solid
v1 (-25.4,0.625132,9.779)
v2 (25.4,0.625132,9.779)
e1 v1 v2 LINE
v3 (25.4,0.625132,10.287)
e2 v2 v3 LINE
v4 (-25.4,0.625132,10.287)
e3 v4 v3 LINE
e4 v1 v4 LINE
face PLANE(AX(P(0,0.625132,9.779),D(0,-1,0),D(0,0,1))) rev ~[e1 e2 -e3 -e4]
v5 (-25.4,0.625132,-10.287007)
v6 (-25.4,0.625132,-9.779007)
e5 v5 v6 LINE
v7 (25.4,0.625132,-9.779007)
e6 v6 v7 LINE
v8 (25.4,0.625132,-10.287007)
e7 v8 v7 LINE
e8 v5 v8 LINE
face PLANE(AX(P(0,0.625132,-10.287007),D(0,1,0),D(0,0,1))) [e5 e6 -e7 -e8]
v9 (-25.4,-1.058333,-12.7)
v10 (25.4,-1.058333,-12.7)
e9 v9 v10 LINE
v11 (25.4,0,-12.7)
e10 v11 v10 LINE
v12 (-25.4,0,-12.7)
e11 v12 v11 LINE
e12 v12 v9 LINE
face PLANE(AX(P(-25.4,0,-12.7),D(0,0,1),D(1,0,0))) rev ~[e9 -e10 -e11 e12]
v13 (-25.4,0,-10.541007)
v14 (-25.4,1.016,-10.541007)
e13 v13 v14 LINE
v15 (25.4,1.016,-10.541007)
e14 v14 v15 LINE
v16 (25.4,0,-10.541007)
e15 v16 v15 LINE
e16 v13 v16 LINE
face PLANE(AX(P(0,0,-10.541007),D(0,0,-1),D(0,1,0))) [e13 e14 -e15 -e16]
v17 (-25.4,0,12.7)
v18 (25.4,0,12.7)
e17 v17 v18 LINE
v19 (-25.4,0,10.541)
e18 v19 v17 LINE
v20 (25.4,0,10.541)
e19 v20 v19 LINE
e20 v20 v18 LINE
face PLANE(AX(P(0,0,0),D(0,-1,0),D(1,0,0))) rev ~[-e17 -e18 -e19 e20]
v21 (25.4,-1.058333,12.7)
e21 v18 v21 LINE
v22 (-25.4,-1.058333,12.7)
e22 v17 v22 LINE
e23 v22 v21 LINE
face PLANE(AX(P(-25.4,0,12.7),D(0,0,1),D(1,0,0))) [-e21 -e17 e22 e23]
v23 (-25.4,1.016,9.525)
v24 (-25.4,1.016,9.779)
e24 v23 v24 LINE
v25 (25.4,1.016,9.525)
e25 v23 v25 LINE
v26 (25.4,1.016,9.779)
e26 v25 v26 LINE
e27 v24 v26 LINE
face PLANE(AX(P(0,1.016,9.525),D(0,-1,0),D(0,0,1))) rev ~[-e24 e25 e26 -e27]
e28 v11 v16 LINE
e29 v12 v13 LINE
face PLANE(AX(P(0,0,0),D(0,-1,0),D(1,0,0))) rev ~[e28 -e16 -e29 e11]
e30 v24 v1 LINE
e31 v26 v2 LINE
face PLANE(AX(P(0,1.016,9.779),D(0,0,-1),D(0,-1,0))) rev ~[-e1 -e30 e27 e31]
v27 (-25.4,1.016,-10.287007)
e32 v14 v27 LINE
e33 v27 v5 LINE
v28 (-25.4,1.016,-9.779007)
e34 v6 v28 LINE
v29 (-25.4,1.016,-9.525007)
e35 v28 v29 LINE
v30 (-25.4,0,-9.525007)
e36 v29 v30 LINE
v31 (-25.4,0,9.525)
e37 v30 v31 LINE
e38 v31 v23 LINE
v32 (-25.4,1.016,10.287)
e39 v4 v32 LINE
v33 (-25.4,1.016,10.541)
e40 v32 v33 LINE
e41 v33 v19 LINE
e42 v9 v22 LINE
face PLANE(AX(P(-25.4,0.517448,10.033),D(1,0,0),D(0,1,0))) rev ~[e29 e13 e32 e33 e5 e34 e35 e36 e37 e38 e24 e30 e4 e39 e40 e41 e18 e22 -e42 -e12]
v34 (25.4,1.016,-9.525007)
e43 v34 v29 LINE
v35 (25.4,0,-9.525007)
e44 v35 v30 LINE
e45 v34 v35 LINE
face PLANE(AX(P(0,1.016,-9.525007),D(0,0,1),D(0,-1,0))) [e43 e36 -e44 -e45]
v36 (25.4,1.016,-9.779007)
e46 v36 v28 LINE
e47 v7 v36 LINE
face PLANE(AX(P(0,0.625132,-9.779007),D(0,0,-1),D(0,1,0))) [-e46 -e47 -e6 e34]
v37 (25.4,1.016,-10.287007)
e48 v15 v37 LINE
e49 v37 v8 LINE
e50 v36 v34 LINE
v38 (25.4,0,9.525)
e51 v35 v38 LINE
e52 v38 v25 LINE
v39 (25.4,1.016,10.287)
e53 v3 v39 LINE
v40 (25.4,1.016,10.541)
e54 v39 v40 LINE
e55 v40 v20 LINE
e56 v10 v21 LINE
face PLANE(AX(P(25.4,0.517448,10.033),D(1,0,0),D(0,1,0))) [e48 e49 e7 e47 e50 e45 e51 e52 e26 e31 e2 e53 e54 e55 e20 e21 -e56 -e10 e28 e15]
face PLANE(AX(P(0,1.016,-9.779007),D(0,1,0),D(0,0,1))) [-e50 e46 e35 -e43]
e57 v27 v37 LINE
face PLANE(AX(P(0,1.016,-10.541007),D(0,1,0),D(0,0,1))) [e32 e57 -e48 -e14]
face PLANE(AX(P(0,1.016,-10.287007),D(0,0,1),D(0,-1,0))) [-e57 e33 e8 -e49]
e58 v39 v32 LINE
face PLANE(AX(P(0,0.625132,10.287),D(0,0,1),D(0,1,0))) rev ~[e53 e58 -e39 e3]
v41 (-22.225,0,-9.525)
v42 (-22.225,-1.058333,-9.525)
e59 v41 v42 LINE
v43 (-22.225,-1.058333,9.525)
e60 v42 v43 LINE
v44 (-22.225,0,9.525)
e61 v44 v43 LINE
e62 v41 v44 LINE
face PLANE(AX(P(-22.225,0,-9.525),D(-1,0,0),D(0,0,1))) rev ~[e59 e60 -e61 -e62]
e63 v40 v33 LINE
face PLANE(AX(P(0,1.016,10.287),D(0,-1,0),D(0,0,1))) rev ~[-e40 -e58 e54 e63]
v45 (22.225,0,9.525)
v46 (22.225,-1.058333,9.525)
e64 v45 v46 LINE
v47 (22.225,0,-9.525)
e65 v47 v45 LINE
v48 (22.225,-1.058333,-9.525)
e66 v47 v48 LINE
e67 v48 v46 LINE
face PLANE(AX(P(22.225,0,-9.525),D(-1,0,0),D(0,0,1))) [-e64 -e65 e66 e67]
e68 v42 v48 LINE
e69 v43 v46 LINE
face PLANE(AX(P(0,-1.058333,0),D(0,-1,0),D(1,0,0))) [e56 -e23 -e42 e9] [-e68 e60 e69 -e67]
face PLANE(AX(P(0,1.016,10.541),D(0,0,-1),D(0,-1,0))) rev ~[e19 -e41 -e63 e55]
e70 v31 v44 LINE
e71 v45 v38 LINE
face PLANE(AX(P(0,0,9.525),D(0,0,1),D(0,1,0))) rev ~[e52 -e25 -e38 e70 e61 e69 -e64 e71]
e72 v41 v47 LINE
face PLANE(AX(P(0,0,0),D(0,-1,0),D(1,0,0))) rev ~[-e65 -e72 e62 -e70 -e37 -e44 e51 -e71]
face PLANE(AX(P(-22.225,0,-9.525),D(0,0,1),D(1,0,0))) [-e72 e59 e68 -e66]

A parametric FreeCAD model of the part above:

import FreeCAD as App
import Part
import Sketcher
Q = App.Units.Quantity

doc = App.newDocument("Part")
body = doc.addObject("PartDesign::Body", "Body")

# Sketch on XZ plane
sketch1 = body.newObject("Sketcher::SketchObject", "Sketch")
sketch1.AttachmentSupport = (doc.getObject("XZ_Plane"), [""])
sketch1.MapMode = "FlatFace"
sketch1.addGeometry([
    Part.LineSegment(App.Vector(-25, 13, 0), App.Vector(-25, -13, 0)),  # 0
    Part.LineSegment(App.Vector(-25, -13, 0), App.Vector(25, -13, 0)),  # 1
    Part.LineSegment(App.Vector(25, -13, 0), App.Vector(25, 13, 0)),  # 2
    Part.LineSegment(App.Vector(25, 13, 0), App.Vector(-25, 13, 0)),  # 3
    Part.LineSegment(App.Vector(22, -10, 0), App.Vector(-22, -10, 0)),  # 4
    Part.LineSegment(App.Vector(-22, -10, 0), App.Vector(-22, 10, 0)),  # 5
    Part.LineSegment(App.Vector(-22, 10, 0), App.Vector(22, 10, 0)),  # 6
    Part.LineSegment(App.Vector(22, 10, 0), App.Vector(22, -10, 0)),  # 7
], False)
sketch1.addConstraint([
    Sketcher.Constraint("Coincident", 0, 2, 1, 1),
    Sketcher.Constraint("Coincident", 1, 2, 2, 1),
    Sketcher.Constraint("Coincident", 2, 2, 3, 1),
    Sketcher.Constraint("Coincident", 3, 2, 0, 1),
    Sketcher.Constraint("Coincident", 4, 2, 5, 1),
    Sketcher.Constraint("Coincident", 5, 2, 6, 1),
    Sketcher.Constraint("Coincident", 6, 2, 7, 1),
    Sketcher.Constraint("Coincident", 7, 2, 4, 1),
    Sketcher.Constraint("Vertical", 0),
    Sketcher.Constraint("Horizontal", 1),
    Sketcher.Constraint("Vertical", 2),
    Sketcher.Constraint("Horizontal", 3),
    Sketcher.Constraint("Horizontal", 4),
    Sketcher.Constraint("Vertical", 5),
    Sketcher.Constraint("Horizontal", 6),
    Sketcher.Constraint("Vertical", 7),
    Sketcher.Constraint("Symmetric", 0, 2, 2, 2, -1, 1),
    Sketcher.Constraint("Symmetric", 4, 2, 6, 2, -1, 1),
    Sketcher.Constraint("DistanceX", 1, 1, 1, 2, Q("2 in")),
    Sketcher.Constraint("DistanceY", 0, 2, 0, 1, Q("1 in")),
    Sketcher.Constraint("DistanceX", 4, 2, 4, 1, Q("1.75 in")),
    Sketcher.Constraint("DistanceY", 5, 1, 5, 2, Q("0.75 in")),
])
pad1 = body.newObject("PartDesign::Pad", "Pad")
pad1.Profile = sketch1
pad1.Length = 1.058333

# Sketch on YZ plane
sketch2 = body.newObject("Sketcher::SketchObject", "Sketch001")
sketch2.AttachmentSupport = (doc.getObject("YZ_Plane"), [""])
sketch2.MapMode = "FlatFace"
sketch2.addGeometry([
    Part.LineSegment(App.Vector(0, 10.54, 0), App.Vector(0, 9.53, 0)),  # 0
    Part.LineSegment(App.Vector(0, 9.53, 0), App.Vector(1.02, 9.53, 0)),  # 1
    Part.LineSegment(App.Vector(1.02, 9.53, 0), App.Vector(1.02, 9.78, 0)),  # 2
    Part.LineSegment(App.Vector(1.02, 9.78, 0), App.Vector(0.63, 9.78, 0)),  # 3
    Part.LineSegment(App.Vector(0.63, 9.78, 0), App.Vector(0.63, 10.29, 0)),  # 4
    Part.LineSegment(App.Vector(0.63, 10.29, 0), App.Vector(1.02, 10.29, 0)),  # 5
    Part.LineSegment(App.Vector(1.02, 10.29, 0), App.Vector(1.02, 10.54, 0)),  # 6
    Part.LineSegment(App.Vector(1.02, 10.54, 0), App.Vector(0, 10.54, 0)),  # 7
    Part.LineSegment(App.Vector(0, -9.53, 0), App.Vector(0, -10.54, 0)),  # 8
    Part.LineSegment(App.Vector(0, -10.54, 0), App.Vector(1.02, -10.54, 0)),  # 9
    Part.LineSegment(App.Vector(1.02, -10.54, 0), App.Vector(1.02, -10.29, 0)),  # 10
    Part.LineSegment(App.Vector(1.02, -10.29, 0), App.Vector(0.63, -10.29, 0)),  # 11
    Part.LineSegment(App.Vector(0.63, -10.29, 0), App.Vector(0.63, -9.78, 0)),  # 12
    Part.LineSegment(App.Vector(0.63, -9.78, 0), App.Vector(1.02, -9.78, 0)),  # 13
    Part.LineSegment(App.Vector(1.02, -9.78, 0), App.Vector(1.02, -9.53, 0)),  # 14
    Part.LineSegment(App.Vector(1.02, -9.53, 0), App.Vector(0, -9.53, 0)),  # 15
], False)
sketch2.addConstraint([
    Sketcher.Constraint("Coincident", 0, 2, 1, 1),
    Sketcher.Constraint("Coincident", 1, 2, 2, 1),
    Sketcher.Constraint("Coincident", 2, 2, 3, 1),
    Sketcher.Constraint("Coincident", 3, 2, 4, 1),
    Sketcher.Constraint("Coincident", 4, 2, 5, 1),
    Sketcher.Constraint("Coincident", 5, 2, 6, 1),
    Sketcher.Constraint("Coincident", 6, 2, 7, 1),
    Sketcher.Constraint("Coincident", 7, 2, 0, 1),
    Sketcher.Constraint("Coincident", 8, 2, 9, 1),
    Sketcher.Constraint("Coincident", 9, 2, 10, 1),
    Sketcher.Constraint("Coincident", 10, 2, 11, 1),
    Sketcher.Constraint("Coincident", 11, 2, 12, 1),
    Sketcher.Constraint("Coincident", 12, 2, 13, 1),
    Sketcher.Constraint("Coincident", 13, 2, 14, 1),
    Sketcher.Constraint("Coincident", 14, 2, 15, 1),
    Sketcher.Constraint("Coincident", 15, 2, 8, 1),
    Sketcher.Constraint("Vertical", 0),
    Sketcher.Constraint("Horizontal", 1),
    Sketcher.Constraint("Vertical", 2),
    Sketcher.Constraint("Horizontal", 3),
    Sketcher.Constraint("Vertical", 4),
    Sketcher.Constraint("Horizontal", 5),
    Sketcher.Constraint("Vertical", 6),
    Sketcher.Constraint("Horizontal", 7),
    Sketcher.Constraint("Vertical", 8),
    Sketcher.Constraint("Horizontal", 9),
    Sketcher.Constraint("Vertical", 10),
    Sketcher.Constraint("Horizontal", 11),
    Sketcher.Constraint("Vertical", 12),
    Sketcher.Constraint("Horizontal", 13),
    Sketcher.Constraint("Vertical", 14),
    Sketcher.Constraint("Horizontal", 15),
    Sketcher.Constraint("Symmetric", 7, 2, 8, 2, -1, 1),
    Sketcher.Constraint("Symmetric", 5, 2, 10, 2, -1),
    Sketcher.Constraint("Symmetric", 3, 2, 12, 2, -1),
    Sketcher.Constraint("Symmetric", 1, 2, 14, 2, -1),
    Sketcher.Constraint("PointOnObject", 0, 2, -2),
    Sketcher.Constraint("Vertical", 2, 2, 5, 2),
    Sketcher.Constraint("Equal", 15, 0),
    Sketcher.Constraint("Equal", 2, 6),
    Sketcher.Constraint("DistanceX", 1, 1, 1, 2, Q("0.04 in")),
    Sketcher.Constraint("DistanceY", 2, 1, 2, 2, Q("0.01 in")),
    Sketcher.Constraint("DistanceY", -1, 1, 0, 2, Q("0.375 in")),
    Sketcher.Constraint("DistanceX", 3, 2, 3, 1, 0.390868),
])
pad2 = body.newObject("PartDesign::Pad", "Pad001")
pad2.Profile = sketch2
pad2.Length = Q("2 in")
pad2.Midplane = True

doc.recompute()
